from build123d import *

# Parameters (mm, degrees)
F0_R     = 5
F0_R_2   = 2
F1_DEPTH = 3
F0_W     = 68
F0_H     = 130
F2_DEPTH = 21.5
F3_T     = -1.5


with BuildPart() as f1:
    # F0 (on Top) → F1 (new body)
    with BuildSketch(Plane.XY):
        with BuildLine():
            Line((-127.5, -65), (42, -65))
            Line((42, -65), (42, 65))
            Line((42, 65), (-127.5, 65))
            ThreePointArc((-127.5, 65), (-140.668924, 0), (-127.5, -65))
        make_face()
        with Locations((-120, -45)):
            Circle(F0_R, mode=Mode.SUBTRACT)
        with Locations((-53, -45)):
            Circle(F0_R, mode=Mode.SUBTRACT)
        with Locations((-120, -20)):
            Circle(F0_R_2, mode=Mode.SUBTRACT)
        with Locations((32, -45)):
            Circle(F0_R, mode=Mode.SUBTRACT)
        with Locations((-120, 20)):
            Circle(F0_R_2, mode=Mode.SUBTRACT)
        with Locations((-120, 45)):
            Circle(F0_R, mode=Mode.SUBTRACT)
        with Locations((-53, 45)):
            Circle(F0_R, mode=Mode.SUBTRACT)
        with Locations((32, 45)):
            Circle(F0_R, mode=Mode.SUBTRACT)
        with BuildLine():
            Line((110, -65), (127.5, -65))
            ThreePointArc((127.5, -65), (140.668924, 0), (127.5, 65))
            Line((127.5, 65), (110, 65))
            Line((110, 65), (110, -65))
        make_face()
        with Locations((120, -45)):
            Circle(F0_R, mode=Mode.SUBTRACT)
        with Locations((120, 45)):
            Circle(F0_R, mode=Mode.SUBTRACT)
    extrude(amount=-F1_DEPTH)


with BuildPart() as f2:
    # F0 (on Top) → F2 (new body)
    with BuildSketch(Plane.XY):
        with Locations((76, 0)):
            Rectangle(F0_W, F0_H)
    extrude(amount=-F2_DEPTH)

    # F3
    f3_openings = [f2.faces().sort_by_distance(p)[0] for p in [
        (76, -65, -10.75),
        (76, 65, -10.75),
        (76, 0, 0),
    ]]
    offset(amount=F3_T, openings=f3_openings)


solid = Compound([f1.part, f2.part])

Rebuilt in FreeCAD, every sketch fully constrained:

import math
import FreeCAD as App
import Part
import Sketcher

V = App.Vector


def faces_at(feature, points):
    """Names of the faces that lie closest to the given points."""
    faces = feature.Shape.Faces
    near = lambda p: min(range(len(faces)), key=lambda i: faces[i].distToShape(Part.Vertex(*p))[0])
    return sorted({f"Face{near(p) + 1}" for p in points})

doc = App.newDocument("Part")
body = doc.addObject("PartDesign::Body", "Body")
body.AllowCompound = True

# Sketch on XY plane
sketch1 = body.newObject("Sketcher::SketchObject", "Sketch")
sketch1.AttachmentSupport = (doc.getObject("XY_Plane"), [""])
sketch1.MapMode = "FlatFace"
sketch1.addGeometry([
    Part.LineSegment(V(-127.5, -65, 0), V(42, -65, 0)),  # 0
    Part.LineSegment(V(42, -65, 0), V(42, 65, 0)),  # 1
    Part.LineSegment(V(42, 65, 0), V(-127.5, 65, 0)),  # 2
    Part.ArcOfCircle(Part.Circle(V(26.3, 0, 0), V(0, 0, 1), 167), math.radians(157), math.radians(203)),  # 3
    Part.Circle(V(-120, -45, 0), V(0, 0, 1), 5),  # 4
    Part.Circle(V(-53, -45, 0), V(0, 0, 1), 5),  # 5
    Part.Circle(V(-120, -20, 0), V(0, 0, 1), 2),  # 6
    Part.Circle(V(32, -45, 0), V(0, 0, 1), 5),  # 7
    Part.Circle(V(-120, 20, 0), V(0, 0, 1), 2),  # 8
    Part.Circle(V(-120, 45, 0), V(0, 0, 1), 5),  # 9
    Part.Circle(V(-53, 45, 0), V(0, 0, 1), 5),  # 10
    Part.Circle(V(32, 45, 0), V(0, 0, 1), 5),  # 11
    Part.LineSegment(V(110, -65, 0), V(127.5, -65, 0)),  # 12
    Part.ArcOfCircle(Part.Circle(V(-26.3, 0, 0), V(0, 0, 1), 167), math.radians(-23), math.radians(23)),  # 13
    Part.LineSegment(V(127.5, 65, 0), V(110, 65, 0)),  # 14
    Part.LineSegment(V(110, 65, 0), V(110, -65, 0)),  # 15
    Part.Circle(V(120, -45, 0), V(0, 0, 1), 5),  # 16
    Part.Circle(V(120, 45, 0), V(0, 0, 1), 5),  # 17
], False)
sketch1.addConstraint([
    Sketcher.Constraint("Coincident", 0, 2, 1, 1),
    Sketcher.Constraint("Coincident", 1, 2, 2, 1),
    Sketcher.Constraint("Coincident", 2, 2, 3, 1),
    Sketcher.Constraint("Coincident", 3, 2, 0, 1),
    Sketcher.Constraint("Coincident", 12, 2, 13, 1),
    Sketcher.Constraint("Coincident", 13, 2, 14, 1),
    Sketcher.Constraint("Coincident", 14, 2, 15, 1),
    Sketcher.Constraint("Coincident", 15, 2, 12, 1),
    Sketcher.Constraint("Horizontal", 0),
    Sketcher.Constraint("Vertical", 1),
    Sketcher.Constraint("Horizontal", 2),
    Sketcher.Constraint("Horizontal", 12),
    Sketcher.Constraint("Horizontal", 14),
    Sketcher.Constraint("Vertical", 15),
    Sketcher.Constraint("Equal", 4, 5),
    Sketcher.Constraint("Equal", 5, 7),
    Sketcher.Constraint("Equal", 6, 8),
    Sketcher.Constraint("Equal", 7, 9),
    Sketcher.Constraint("Equal", 9, 10),
    Sketcher.Constraint("Equal", 10, 11),
    Sketcher.Constraint("Equal", 3, 13),
    Sketcher.Constraint("Equal", 11, 16),
    Sketcher.Constraint("Equal", 16, 17),
    Sketcher.Constraint("Symmetric", 3, 3, 13, 3, -1, 1),
    Sketcher.Constraint("Symmetric", 9, 3, 16, 3, -1, 1),
    Sketcher.Constraint("Symmetric", 4, 3, 17, 3, -1, 1),
    Sketcher.Constraint("Symmetric", 4, 3, 16, 3, -2),
    Sketcher.Constraint("Symmetric", 3, 2, 12, 2, -2),
    Sketcher.Constraint("Symmetric", 6, 3, 8, 3, -1),
    Sketcher.Constraint("Symmetric", 5, 3, 10, 3, -1),
    Sketcher.Constraint("Symmetric", 7, 3, 11, 3, -1),
    Sketcher.Constraint("Horizontal", 4, 3, 5, 3),
    Sketcher.Constraint("Horizontal", 5, 3, 7, 3),
    Sketcher.Constraint("Horizontal", 2, 2, 13, 2),
    Sketcher.Constraint("Vertical", 4, 3, 6, 3),
    Sketcher.Constraint("Vertical", 2, 2, 3, 2),
    Sketcher.Constraint("Diameter", 4, 10.0),
    Sketcher.Constraint("Diameter", 6, 4.0),
    Sketcher.Constraint("DistanceY", 1, 1, 1, 2, 130.0),
    Sketcher.Constraint("DistanceX", 0, 1, 0, 2, 169.5),
    Sketcher.Constraint("DistanceX", 12, 1, 12, 2, 17.5),
    Sketcher.Constraint("DistanceX", 4, 3, -1, 1, 120.0),
    Sketcher.Constraint("DistanceY", 4, 3, -1, 1, 45.0),
    Sketcher.Constraint("DistanceX", 5, 3, -1, 1, 53.0),
    Sketcher.Constraint("DistanceY", 6, 3, -1, 1, 20.0),
    Sketcher.Constraint("DistanceX", -1, 1, 7, 3, 32.0),
    Sketcher.Constraint("DistanceX", -1, 1, 0, 2, 42.0),
    Sketcher.Constraint("Radius", 3, 166.999998),
])
pad1 = body.newObject("PartDesign::Pad", "Pad")
pad1.Profile = sketch1
pad1.Length = 3
pad1.Reversed = True
body2 = doc.addObject("PartDesign::Body", "Body001")

# Sketch on XY plane
sketch2 = body2.newObject("Sketcher::SketchObject", "Sketch001")
sketch2.AttachmentSupport = (doc.getObject("XY_Plane001"), [""])
sketch2.MapMode = "FlatFace"
sketch2.addGeometry([
    Part.LineSegment(V(42, 65, 0), V(42, -65, 0)),
    Part.LineSegment(V(42, -65, 0), V(110, -65, 0)),
    Part.LineSegment(V(110, -65, 0), V(110, 65, 0)),
    Part.LineSegment(V(110, 65, 0), V(42, 65, 0)),
], False)
sketch2.addConstraint([
    Sketcher.Constraint("Coincident", 0, 2, 1, 1),
    Sketcher.Constraint("Coincident", 1, 2, 2, 1),
    Sketcher.Constraint("Coincident", 2, 2, 3, 1),
    Sketcher.Constraint("Coincident", 3, 2, 0, 1),
    Sketcher.Constraint("Vertical", 0),
    Sketcher.Constraint("Horizontal", 1),
    Sketcher.Constraint("Vertical", 2),
    Sketcher.Constraint("Horizontal", 3),
    Sketcher.Constraint("DistanceX", 1, 1, 1, 2, 68.0),
    Sketcher.Constraint("DistanceY", 0, 2, 0, 1, 130.0),
    Sketcher.Constraint("DistanceX", -1, 1, 0, 2, 42.0),
    Sketcher.Constraint("DistanceY", 0, 2, -1, 1, 65.0),
])
pad2 = body2.newObject("PartDesign::Pad", "Pad001")
pad2.Profile = sketch2
pad2.Length = 21.5
pad2.Reversed = True
doc.recompute()

thickness = body2.newObject("PartDesign::Thickness", "Thickness")
thickness.Base = (pad2, faces_at(pad2, [(76, -65, -10.75), (76, 65, -10.75), (76, 0, 0)]))
thickness.Value = 1.5
thickness.Reversed = True
thickness.Join = "Arc"

doc.recompute()
